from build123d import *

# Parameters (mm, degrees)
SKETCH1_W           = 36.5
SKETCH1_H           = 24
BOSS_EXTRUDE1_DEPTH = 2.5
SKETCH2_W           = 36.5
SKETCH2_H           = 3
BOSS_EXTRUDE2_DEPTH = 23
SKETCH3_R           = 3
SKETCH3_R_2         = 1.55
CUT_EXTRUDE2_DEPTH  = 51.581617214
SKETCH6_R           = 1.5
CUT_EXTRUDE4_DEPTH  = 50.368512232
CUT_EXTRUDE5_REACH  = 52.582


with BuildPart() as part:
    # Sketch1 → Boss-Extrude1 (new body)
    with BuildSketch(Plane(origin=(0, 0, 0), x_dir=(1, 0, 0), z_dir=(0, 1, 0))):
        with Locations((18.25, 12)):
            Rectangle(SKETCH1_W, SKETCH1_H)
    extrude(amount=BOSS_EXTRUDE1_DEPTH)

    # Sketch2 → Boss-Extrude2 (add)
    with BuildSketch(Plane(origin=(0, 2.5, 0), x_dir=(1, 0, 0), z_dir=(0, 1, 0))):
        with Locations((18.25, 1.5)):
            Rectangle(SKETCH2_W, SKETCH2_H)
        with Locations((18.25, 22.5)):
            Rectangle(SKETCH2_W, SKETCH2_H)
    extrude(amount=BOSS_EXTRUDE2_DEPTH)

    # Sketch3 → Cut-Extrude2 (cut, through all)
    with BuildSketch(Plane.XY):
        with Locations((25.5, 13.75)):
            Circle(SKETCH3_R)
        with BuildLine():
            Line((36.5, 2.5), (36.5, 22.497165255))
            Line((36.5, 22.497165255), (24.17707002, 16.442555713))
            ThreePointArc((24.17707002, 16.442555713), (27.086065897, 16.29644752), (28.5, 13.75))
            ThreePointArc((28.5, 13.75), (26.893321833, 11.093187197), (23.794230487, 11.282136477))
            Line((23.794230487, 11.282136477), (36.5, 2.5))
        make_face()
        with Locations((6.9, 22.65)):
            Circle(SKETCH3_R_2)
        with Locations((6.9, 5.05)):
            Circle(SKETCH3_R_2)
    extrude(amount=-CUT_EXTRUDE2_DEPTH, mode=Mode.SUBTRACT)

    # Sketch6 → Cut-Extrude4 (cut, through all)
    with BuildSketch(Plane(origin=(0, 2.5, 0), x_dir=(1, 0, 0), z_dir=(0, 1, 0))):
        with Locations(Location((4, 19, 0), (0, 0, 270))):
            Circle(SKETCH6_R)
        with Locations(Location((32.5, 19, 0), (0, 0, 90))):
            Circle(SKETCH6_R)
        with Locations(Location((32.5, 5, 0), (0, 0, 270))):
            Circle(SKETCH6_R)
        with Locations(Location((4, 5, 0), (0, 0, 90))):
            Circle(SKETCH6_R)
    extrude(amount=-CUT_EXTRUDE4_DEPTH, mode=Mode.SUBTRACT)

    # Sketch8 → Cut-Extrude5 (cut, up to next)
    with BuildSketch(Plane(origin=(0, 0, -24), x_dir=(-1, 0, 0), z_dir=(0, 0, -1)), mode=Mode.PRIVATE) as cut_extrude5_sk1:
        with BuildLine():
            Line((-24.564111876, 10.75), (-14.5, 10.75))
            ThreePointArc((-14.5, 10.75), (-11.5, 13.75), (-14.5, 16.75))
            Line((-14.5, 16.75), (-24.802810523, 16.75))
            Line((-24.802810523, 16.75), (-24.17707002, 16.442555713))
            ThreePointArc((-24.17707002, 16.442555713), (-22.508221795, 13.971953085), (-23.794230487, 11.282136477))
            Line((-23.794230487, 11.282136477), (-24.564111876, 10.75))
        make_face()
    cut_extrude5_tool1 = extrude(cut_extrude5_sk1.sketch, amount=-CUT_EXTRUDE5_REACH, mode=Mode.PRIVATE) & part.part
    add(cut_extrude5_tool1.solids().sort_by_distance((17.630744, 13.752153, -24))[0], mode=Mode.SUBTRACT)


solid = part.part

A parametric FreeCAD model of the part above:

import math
import FreeCAD as App
import Part
import Sketcher


def add_polygon(sketch, points):
    """Adds a closed chain of lines whose ends are joined by coincident constraints."""
    first, n = sketch.GeometryCount, len(points)
    for a, b in zip(points, points[1:] + points[:1]):
        sketch.addGeometry(Part.LineSegment(App.Vector(*a, 0), App.Vector(*b, 0)), False)
    for i in range(n):
        sketch.addConstraint(Sketcher.Constraint("Coincident", first + i, 2, first + (i + 1) % n, 1))

doc = App.newDocument("Part")
body = doc.addObject("PartDesign::Body", "Body")

sketch1 = body.newObject("Sketcher::SketchObject", "Sketch")
sketch1.AttachmentSupport = (doc.getObject("XZ_Plane"), [""])
sketch1.MapMode = "FlatFace"
add_polygon(sketch1, [(0, -24), (0, 0), (36, 0), (36, -24)])
sketch1.addConstraint(Sketcher.Constraint("Vertical", 0))
sketch1.addConstraint(Sketcher.Constraint("Horizontal", 1))
sketch1.addConstraint(Sketcher.Constraint("Vertical", 2))
sketch1.addConstraint(Sketcher.Constraint("Horizontal", 3))
sketch1.addConstraint(Sketcher.Constraint("Coincident", 0, 2, -1, 1))
sketch1.addConstraint(Sketcher.Constraint("DistanceY", 0, 1, 0, 2, 24.0))
sketch1.addConstraint(Sketcher.Constraint("DistanceX", 1, 1, 1, 2, 36.5))
pad1 = body.newObject("PartDesign::Pad", "Pad")
pad1.Profile = sketch1
pad1.Length = 2.5
pad1.Reversed = True

sketch2 = body.newObject("Sketcher::SketchObject", "Sketch001")
sketch2.AttachmentSupport = (doc.getObject("XZ_Plane"), [""])
sketch2.MapMode = "FlatFace"
sketch2.AttachmentOffset = App.Placement(App.Vector(0, 0, -2.5), App.Rotation())
add_polygon(sketch2, [(0, -3), (0, 0), (36.5, 0), (36.5, -3)])
add_polygon(sketch2, [(0, -24), (0, -21), (36.5, -21), (36.5, -24)])
sketch2.addConstraint(Sketcher.Constraint("Vertical", 0))
sketch2.addConstraint(Sketcher.Constraint("Horizontal", 1))
sketch2.addConstraint(Sketcher.Constraint("Vertical", 2))
sketch2.addConstraint(Sketcher.Constraint("Horizontal", 3))
sketch2.addConstraint(Sketcher.Constraint("Vertical", 4))
sketch2.addConstraint(Sketcher.Constraint("Horizontal", 5))
sketch2.addConstraint(Sketcher.Constraint("Vertical", 6))
sketch2.addConstraint(Sketcher.Constraint("Horizontal", 7))
sketch2.addConstraint(Sketcher.Constraint("Coincident", 0, 2, -1, 1))
sketch2.addConstraint(Sketcher.Constraint("PointOnObject", 4, 2, -2))
sketch2.addConstraint(Sketcher.Constraint("Vertical", 2, 2, 5, 2))
sketch2.addConstraint(Sketcher.Constraint("Equal", 2, 4))
sketch2.addConstraint(Sketcher.Constraint("DistanceY", 0, 1, 0, 2, 3.0))
sketch2.addConstraint(Sketcher.Constraint("DistanceX", 1, 1, 1, 2, 36.5))
sketch2.addConstraint(Sketcher.Constraint("DistanceY", 4, 2, -1, 1, 21.0))
pad2 = body.newObject("PartDesign::Pad", "Pad001")
pad2.Profile = sketch2
pad2.Length = 23
pad2.Reversed = True

sketch3 = body.newObject("Sketcher::SketchObject", "Sketch002")
sketch3.AttachmentSupport = (doc.getObject("XY_Plane"), [""])
sketch3.MapMode = "FlatFace"
sketch3.addGeometry(Part.ArcOfCircle(Part.Circle(App.Vector(25.5, 13.8, 0), App.Vector(0, 0, 1), 3), math.radians(116), math.radians(235)), False)
sketch3.addGeometry(Part.LineSegment(App.Vector(23.8, 11.3, 0), App.Vector(36.5, 2.5, 0)), False)
sketch3.addGeometry(Part.LineSegment(App.Vector(36.5, 2.5, 0), App.Vector(36.5, 22.5, 0)), False)
sketch3.addGeometry(Part.LineSegment(App.Vector(36.5, 22.5, 0), App.Vector(24.2, 16.4, 0)), False)
sketch3.addGeometry(Part.Circle(App.Vector(6.9, 22.6, 0), App.Vector(0, 0, 1), 1.6), False)
sketch3.addGeometry(Part.Circle(App.Vector(6.9, 5, 0), App.Vector(0, 0, 1), 1.6), False)
sketch3.addConstraint(Sketcher.Constraint("Tangent", 0, 2, 1, 1))
sketch3.addConstraint(Sketcher.Constraint("Coincident", 1, 2, 2, 1))
sketch3.addConstraint(Sketcher.Constraint("Coincident", 2, 2, 3, 1))
sketch3.addConstraint(Sketcher.Constraint("Tangent", 3, 2, 0, 1))
sketch3.addConstraint(Sketcher.Constraint("Vertical", 2))
sketch3.addConstraint(Sketcher.Constraint("Equal", 4, 5))
sketch3.addConstraint(Sketcher.Constraint("Vertical", 4, 3, 5, 3))
sketch3.addConstraint(Sketcher.Constraint("Radius", 0, 3.0))
sketch3.addConstraint(Sketcher.Constraint("Diameter", 4, 3.1))
sketch3.addConstraint(Sketcher.Constraint("DistanceX", 0, 3, 1, 2, 11.0))
sketch3.addConstraint(Sketcher.Constraint("DistanceX", -1, 1, 0, 3, 25.5))
sketch3.addConstraint(Sketcher.Constraint("DistanceX", -1, 1, 4, 3, 6.9))
sketch3.addConstraint(Sketcher.Constraint("DistanceY", -1, 1, 1, 2, 2.5))
sketch3.addConstraint(Sketcher.Constraint("DistanceY", 0, 3, 4, 3, 8.9))
sketch3.addConstraint(Sketcher.Constraint("DistanceY", 5, 3, 4, 3, 17.6))
sketch3.addConstraint(Sketcher.Constraint("Distance", 3, 13.73))
sketch3.addConstraint(Sketcher.Constraint("DistanceY", -1, 1, 0, 3, 13.75))
pocket1 = body.newObject("PartDesign::Pocket", "Pocket")
pocket1.Profile = sketch3
pocket1.Type = "ThroughAll"

sketch4 = body.newObject("Sketcher::SketchObject", "Sketch003")
sketch4.AttachmentSupport = (doc.getObject("XZ_Plane"), [""])
sketch4.MapMode = "FlatFace"
sketch4.AttachmentOffset = App.Placement(App.Vector(0, 0, -2.5), App.Rotation())
sketch4.addGeometry(Part.Circle(App.Vector(4, -19, 0), App.Vector(0, 0, 1), 1.5), False)
sketch4.addGeometry(Part.Circle(App.Vector(32.5, -19, 0), App.Vector(0, 0, 1), 1.5), False)
sketch4.addGeometry(Part.Circle(App.Vector(32.5, -5, 0), App.Vector(0, 0, 1), 1.5), False)
sketch4.addGeometry(Part.Circle(App.Vector(4, -5, 0), App.Vector(0, 0, 1), 1.5), False)
sketch4.addConstraint(Sketcher.Constraint("Equal", 0, 1))
sketch4.addConstraint(Sketcher.Constraint("Equal", 1, 2))
sketch4.addConstraint(Sketcher.Constraint("Equal", 2, 3))
sketch4.addConstraint(Sketcher.Constraint("Horizontal", 0, 3, 1, 3))
sketch4.addConstraint(Sketcher.Constraint("Horizontal", 2, 3, 3, 3))
sketch4.addConstraint(Sketcher.Constraint("Vertical", 1, 3, 2, 3))
sketch4.addConstraint(Sketcher.Constraint("Vertical", 0, 3, 3, 3))
sketch4.addConstraint(Sketcher.Constraint("Diameter", 0, 3.0))
sketch4.addConstraint(Sketcher.Constraint("DistanceX", -1, 1, 0, 3, 4.0))
sketch4.addConstraint(Sketcher.Constraint("DistanceY", 0, 3, -1, 1, 19.0))
sketch4.addConstraint(Sketcher.Constraint("DistanceY", 2, 3, -1, 1, 5.0))
sketch4.addConstraint(Sketcher.Constraint("DistanceX", -1, 1, 1, 3, 32.5))
pocket2 = body.newObject("PartDesign::Pocket", "Pocket001")
pocket2.Profile = sketch4
pocket2.Type = "ThroughAll"
pocket2.Reversed = True

sketch5 = body.newObject("Sketcher::SketchObject", "Sketch004")
sketch5.AttachmentSupport = (doc.getObject("XY_Plane"), [""])
sketch5.MapMode = "FlatFace"
sketch5.AttachmentOffset = App.Placement(App.Vector(0, 0, -24), App.Rotation())
sketch5.addGeometry(Part.LineSegment(App.Vector(24.6, 10.8, 0), App.Vector(14.5, 10.8, 0)), False)
sketch5.addGeometry(Part.ArcOfCircle(Part.Circle(App.Vector(14.5, 13.8, 0), App.Vector(0, 0, 1), 3), math.radians(90), math.radians(270)), False)
sketch5.addGeometry(Part.LineSegment(App.Vector(14.5, 16.8, 0), App.Vector(24.8, 16.8, 0)), False)
sketch5.addGeometry(Part.LineSegment(App.Vector(24.8, 16.8, 0), App.Vector(24.2, 16.4, 0)), False)
sketch5.addGeometry(Part.ArcOfCircle(Part.Circle(App.Vector(25.5, 13.8, 0), App.Vector(0, 0, 1), 3), math.radians(116), math.radians(235)), False)
sketch5.addGeometry(Part.LineSegment(App.Vector(23.8, 11.3, 0), App.Vector(24.6, 10.8, 0)), False)
sketch5.addConstraint(Sketcher.Constraint("Tangent", 0, 2, 1, 2))
sketch5.addConstraint(Sketcher.Constraint("Tangent", 1, 1, 2, 1))
sketch5.addConstraint(Sketcher.Constraint("Coincident", 2, 2, 3, 1))
sketch5.addConstraint(Sketcher.Constraint("Tangent", 3, 2, 4, 1))
sketch5.addConstraint(Sketcher.Constraint("Tangent", 4, 2, 5, 1))
sketch5.addConstraint(Sketcher.Constraint("Coincident", 5, 2, 0, 1))
sketch5.addConstraint(Sketcher.Constraint("Horizontal", 0))
sketch5.addConstraint(Sketcher.Constraint("Horizontal", 2))
sketch5.addConstraint(Sketcher.Constraint("Equal", 1, 4))
sketch5.addConstraint(Sketcher.Constraint("Horizontal", 1, 3, 4, 3))
sketch5.addConstraint(Sketcher.Constraint("Radius", 1, 3.0))
sketch5.addConstraint(Sketcher.Constraint("DistanceX", 1, 3, 4, 3, 11.0))
sketch5.addConstraint(Sketcher.Constraint("DistanceX", -1, 1, 1, 3, 14.5))
sketch5.addConstraint(Sketcher.Constraint("DistanceY", -1, 1, 1, 3, 13.75))
sketch5.addConstraint(Sketcher.Constraint("DistanceX", 0, 2, 0, 1, 10.064112))
sketch5.addConstraint(Sketcher.Constraint("DistanceX", 2, 1, 2, 2, 10.302811))
pocket3 = body.newObject("PartDesign::Pocket", "Pocket002")
pocket3.Profile = sketch5
pocket3.Type = "UpToFirst"
pocket3.Reversed = True

doc.recompute()
